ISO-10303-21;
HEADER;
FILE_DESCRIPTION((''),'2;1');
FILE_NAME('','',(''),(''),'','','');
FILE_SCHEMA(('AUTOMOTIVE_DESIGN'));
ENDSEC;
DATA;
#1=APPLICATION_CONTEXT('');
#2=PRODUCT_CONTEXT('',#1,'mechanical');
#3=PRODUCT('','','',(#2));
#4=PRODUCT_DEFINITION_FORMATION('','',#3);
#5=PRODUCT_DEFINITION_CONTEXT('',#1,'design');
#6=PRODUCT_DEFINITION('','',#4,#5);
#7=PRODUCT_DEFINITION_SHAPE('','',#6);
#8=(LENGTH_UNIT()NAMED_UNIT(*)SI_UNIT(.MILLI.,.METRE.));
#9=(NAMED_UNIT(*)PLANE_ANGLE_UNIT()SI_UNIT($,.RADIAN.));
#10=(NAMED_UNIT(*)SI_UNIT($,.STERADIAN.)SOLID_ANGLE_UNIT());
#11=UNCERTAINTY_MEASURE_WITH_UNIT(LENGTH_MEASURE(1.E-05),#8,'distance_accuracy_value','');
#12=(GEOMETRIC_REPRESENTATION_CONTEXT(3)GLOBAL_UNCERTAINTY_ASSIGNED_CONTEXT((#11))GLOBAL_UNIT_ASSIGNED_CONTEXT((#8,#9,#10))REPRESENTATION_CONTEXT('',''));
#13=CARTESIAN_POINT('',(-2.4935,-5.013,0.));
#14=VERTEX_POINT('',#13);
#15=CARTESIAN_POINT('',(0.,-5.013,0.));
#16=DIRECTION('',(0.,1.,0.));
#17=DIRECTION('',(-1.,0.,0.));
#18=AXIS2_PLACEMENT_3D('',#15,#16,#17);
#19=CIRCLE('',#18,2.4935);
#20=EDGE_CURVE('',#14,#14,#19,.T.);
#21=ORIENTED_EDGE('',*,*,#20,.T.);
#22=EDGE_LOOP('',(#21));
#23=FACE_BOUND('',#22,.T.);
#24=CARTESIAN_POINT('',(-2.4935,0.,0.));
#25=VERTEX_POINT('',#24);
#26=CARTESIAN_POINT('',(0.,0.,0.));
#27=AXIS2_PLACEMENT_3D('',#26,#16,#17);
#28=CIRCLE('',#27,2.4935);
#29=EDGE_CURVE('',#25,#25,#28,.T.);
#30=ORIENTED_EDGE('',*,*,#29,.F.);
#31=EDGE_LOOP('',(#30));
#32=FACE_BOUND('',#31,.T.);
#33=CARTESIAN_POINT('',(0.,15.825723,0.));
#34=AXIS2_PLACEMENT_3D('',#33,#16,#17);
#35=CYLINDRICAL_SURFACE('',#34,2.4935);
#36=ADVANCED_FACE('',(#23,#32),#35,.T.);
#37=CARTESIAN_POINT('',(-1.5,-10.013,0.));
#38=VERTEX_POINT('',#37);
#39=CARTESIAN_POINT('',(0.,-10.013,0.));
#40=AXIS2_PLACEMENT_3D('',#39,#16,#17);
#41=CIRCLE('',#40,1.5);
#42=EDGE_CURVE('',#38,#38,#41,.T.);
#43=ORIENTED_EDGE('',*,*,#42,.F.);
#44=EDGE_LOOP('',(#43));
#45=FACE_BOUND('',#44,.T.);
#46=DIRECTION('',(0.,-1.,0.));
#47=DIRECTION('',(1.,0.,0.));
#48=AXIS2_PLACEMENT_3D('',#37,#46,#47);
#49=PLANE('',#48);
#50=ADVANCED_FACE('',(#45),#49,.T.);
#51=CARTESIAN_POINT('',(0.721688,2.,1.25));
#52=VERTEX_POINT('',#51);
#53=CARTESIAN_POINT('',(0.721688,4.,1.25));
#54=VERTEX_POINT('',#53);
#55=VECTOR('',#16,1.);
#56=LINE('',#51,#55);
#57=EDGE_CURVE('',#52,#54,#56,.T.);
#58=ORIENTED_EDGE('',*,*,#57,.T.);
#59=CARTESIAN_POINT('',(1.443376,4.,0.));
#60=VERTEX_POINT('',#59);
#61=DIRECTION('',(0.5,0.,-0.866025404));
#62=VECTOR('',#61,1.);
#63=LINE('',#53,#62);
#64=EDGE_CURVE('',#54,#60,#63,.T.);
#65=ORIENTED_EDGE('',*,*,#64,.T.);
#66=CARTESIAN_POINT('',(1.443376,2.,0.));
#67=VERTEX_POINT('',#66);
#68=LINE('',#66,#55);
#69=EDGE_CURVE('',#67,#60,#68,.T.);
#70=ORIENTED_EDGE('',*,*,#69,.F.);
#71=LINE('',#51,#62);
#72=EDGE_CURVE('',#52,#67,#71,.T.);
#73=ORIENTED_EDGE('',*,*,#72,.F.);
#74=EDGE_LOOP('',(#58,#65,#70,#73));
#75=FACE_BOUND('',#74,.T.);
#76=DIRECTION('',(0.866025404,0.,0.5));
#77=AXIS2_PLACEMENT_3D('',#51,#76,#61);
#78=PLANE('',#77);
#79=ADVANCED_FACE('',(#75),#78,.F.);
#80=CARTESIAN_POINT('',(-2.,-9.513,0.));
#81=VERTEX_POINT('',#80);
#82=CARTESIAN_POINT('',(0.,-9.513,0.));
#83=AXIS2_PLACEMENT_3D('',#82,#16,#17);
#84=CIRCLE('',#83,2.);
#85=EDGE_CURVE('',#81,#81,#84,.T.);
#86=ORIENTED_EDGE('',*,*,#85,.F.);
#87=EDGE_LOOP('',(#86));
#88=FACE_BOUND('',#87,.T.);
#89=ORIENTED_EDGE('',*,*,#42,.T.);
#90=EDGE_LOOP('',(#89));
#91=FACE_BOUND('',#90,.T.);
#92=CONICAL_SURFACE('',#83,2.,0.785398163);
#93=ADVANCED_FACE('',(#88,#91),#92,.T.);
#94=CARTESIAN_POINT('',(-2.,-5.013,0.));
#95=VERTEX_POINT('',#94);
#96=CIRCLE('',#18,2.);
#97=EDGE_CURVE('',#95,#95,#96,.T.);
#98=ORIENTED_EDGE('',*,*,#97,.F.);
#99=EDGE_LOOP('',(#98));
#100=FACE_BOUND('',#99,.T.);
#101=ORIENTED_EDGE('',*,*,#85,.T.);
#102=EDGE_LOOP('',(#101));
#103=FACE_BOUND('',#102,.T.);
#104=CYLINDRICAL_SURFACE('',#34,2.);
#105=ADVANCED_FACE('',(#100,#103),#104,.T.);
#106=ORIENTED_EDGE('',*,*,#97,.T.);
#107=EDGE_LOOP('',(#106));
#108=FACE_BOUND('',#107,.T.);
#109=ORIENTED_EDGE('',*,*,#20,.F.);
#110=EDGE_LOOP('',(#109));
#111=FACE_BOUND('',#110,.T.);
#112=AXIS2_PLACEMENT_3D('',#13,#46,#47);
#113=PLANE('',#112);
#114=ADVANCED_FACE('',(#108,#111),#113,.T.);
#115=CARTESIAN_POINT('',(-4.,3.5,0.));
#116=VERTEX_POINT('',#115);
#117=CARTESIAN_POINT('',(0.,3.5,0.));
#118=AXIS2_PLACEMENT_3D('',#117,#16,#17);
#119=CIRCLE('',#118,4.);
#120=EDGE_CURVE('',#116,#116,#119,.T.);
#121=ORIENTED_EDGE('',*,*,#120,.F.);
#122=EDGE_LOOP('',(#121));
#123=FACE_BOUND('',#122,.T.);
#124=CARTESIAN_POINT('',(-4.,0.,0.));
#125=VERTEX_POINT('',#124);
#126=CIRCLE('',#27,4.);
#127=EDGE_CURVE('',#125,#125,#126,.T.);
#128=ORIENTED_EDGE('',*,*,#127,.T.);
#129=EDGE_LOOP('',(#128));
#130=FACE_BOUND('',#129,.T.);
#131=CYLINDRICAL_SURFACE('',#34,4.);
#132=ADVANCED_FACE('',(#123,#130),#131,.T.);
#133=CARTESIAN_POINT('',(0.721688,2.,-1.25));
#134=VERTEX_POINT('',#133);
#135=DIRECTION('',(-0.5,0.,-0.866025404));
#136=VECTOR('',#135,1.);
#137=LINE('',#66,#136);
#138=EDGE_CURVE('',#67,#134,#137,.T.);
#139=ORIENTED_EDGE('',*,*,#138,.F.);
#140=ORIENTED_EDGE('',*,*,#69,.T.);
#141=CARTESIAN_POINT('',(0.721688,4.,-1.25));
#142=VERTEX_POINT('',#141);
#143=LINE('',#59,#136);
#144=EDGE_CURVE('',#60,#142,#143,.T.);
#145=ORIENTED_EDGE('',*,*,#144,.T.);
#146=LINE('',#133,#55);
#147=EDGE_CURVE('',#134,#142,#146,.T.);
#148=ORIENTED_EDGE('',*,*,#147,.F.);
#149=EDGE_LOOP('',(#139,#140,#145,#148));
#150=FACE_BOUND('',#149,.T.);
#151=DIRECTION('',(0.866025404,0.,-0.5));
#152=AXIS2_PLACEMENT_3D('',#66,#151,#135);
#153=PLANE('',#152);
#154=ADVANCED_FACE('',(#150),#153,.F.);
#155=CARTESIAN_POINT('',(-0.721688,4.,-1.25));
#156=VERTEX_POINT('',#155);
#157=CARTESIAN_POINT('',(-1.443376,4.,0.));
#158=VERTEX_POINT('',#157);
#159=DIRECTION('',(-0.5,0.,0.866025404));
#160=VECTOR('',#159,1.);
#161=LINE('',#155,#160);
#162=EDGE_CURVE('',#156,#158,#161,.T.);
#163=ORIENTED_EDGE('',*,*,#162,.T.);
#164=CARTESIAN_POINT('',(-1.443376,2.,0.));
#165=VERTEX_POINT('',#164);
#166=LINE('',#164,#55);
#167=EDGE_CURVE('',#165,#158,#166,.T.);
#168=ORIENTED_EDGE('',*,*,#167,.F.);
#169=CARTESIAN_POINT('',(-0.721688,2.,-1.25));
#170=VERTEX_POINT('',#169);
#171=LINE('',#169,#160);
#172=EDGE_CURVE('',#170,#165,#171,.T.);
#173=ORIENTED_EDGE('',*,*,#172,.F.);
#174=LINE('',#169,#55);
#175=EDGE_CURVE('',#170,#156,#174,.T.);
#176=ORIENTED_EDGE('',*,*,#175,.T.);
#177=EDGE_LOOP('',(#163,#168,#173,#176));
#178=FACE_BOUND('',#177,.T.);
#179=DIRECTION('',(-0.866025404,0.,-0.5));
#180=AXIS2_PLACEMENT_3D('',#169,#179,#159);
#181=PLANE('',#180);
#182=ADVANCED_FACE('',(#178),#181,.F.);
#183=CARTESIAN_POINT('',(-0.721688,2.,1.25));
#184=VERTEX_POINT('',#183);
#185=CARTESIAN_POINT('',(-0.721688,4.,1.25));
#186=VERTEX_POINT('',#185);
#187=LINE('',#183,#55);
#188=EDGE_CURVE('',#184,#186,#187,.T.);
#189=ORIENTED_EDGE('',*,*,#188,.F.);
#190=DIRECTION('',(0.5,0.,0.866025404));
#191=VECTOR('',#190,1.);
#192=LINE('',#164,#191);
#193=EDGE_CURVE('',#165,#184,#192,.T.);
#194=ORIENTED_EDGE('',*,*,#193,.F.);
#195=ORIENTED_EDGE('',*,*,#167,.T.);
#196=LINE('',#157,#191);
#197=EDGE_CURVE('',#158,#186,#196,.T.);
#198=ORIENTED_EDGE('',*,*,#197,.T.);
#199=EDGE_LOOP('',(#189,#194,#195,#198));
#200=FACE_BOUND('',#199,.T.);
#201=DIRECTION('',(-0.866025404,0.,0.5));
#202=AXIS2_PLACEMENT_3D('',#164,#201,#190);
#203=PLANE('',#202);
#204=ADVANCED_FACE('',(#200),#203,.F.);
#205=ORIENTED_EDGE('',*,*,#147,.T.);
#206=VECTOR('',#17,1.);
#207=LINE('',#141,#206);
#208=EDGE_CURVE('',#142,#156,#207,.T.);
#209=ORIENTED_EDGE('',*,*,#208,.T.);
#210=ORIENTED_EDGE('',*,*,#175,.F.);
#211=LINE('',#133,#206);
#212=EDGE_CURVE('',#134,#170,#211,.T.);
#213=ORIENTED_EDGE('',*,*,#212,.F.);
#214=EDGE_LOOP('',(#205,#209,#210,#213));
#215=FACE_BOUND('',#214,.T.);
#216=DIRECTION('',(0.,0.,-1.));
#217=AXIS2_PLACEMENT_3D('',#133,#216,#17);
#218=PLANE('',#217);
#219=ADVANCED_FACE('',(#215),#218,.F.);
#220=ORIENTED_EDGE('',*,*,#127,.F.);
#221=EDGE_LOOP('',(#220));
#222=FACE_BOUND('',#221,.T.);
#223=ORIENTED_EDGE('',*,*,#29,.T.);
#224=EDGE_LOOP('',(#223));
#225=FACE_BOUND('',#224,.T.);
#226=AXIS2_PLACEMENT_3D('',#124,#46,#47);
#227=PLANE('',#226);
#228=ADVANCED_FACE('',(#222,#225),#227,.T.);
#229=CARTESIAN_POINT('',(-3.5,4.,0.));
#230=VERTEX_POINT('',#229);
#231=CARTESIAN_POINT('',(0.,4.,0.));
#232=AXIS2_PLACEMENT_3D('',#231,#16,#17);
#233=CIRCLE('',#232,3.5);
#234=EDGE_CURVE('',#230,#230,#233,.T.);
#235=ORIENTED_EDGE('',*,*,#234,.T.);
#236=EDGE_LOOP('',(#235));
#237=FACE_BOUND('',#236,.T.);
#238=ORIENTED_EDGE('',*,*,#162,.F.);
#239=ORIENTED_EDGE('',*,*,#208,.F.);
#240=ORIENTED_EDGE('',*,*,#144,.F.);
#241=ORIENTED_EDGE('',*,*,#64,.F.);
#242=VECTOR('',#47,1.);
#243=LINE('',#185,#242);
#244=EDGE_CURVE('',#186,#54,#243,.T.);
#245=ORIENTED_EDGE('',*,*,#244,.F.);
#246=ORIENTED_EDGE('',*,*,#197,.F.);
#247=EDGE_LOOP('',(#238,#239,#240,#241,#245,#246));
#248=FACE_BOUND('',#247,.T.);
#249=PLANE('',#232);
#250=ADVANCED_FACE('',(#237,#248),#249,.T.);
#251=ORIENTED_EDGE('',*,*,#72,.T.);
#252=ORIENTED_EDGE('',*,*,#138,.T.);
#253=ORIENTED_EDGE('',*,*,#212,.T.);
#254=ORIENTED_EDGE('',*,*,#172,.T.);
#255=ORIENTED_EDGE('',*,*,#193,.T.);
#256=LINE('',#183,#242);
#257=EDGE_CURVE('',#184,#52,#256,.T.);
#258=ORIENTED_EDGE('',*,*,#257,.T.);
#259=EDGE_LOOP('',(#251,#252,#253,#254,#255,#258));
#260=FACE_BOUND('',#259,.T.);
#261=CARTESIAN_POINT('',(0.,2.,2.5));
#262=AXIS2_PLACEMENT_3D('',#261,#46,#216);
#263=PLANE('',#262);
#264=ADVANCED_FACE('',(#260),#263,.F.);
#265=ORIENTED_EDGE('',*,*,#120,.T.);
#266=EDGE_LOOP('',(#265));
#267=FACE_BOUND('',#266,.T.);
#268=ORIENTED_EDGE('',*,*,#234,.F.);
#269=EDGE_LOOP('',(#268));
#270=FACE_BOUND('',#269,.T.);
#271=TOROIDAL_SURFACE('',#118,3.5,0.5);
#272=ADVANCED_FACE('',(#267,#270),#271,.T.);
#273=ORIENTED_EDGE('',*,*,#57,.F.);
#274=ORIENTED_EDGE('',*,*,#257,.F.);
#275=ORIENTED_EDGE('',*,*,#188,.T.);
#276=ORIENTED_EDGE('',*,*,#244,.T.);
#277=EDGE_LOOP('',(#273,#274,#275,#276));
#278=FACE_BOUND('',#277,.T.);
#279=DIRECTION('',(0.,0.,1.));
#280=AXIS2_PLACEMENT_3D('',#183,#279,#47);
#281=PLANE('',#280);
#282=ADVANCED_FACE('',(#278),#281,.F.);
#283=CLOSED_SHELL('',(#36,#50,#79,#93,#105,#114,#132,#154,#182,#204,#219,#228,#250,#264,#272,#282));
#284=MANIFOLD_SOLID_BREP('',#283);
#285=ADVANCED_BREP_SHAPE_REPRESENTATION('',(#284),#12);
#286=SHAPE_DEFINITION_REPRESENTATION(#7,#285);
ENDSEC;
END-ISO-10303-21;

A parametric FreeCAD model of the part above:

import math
import FreeCAD as App
import Part
import Sketcher
from FreeCAD import Vector
Q = App.Units.Quantity

doc = App.newDocument("Part")
body = doc.addObject("PartDesign::Body", "Body")

# Sketch on XY plane
sketch1 = body.newObject("Sketcher::SketchObject", "Sketch")
sketch1.AttachmentSupport = (doc.getObject("XY_Plane"), [""])
sketch1.MapMode = "FlatFace"
sketch1.addGeometry(Part.LineSegment(Vector(0, 4, 0), Vector(-3.5, 4, 0)), False)
sketch1.addGeometry(Part.ArcOfCircle(Part.Circle(Vector(-3.5, 3.5, 0), Vector(0, 0, 1), 0.5), math.radians(90), math.radians(180)), False)
sketch1.addGeometry(Part.LineSegment(Vector(-4, 3.5, 0), Vector(-4, 0, 0)), False)
sketch1.addGeometry(Part.LineSegment(Vector(-4, 0, 0), Vector(-2.4935, 0, 0)), False)
sketch1.addGeometry(Part.LineSegment(Vector(-2.4935, 0, 0), Vector(-2.4935, -5.013, 0)), False)
sketch1.addGeometry(Part.LineSegment(Vector(-2.4935, -5.013, 0), Vector(-2, -5.013, 0)), False)
sketch1.addGeometry(Part.LineSegment(Vector(-2, -5.013, 0), Vector(-2, -9.513, 0)), False)
sketch1.addGeometry(Part.LineSegment(Vector(-2, -9.513, 0), Vector(-1.5, -10.013, 0)), False)
sketch1.addGeometry(Part.LineSegment(Vector(-1.5, -10.013, 0), Vector(0, -10.013, 0)), False)
sketch1.addGeometry(Part.LineSegment(Vector(0, -10.013, 0), Vector(0, 4, 0)), False)
sketch1.addConstraint(Sketcher.Constraint("Tangent", 0, 2, 1, 1))
sketch1.addConstraint(Sketcher.Constraint("Tangent", 1, 2, 2, 1))
sketch1.addConstraint(Sketcher.Constraint("Coincident", 2, 2, 3, 1))
sketch1.addConstraint(Sketcher.Constraint("Coincident", 3, 2, 4, 1))
sketch1.addConstraint(Sketcher.Constraint("Coincident", 4, 2, 5, 1))
sketch1.addConstraint(Sketcher.Constraint("Coincident", 5, 2, 6, 1))
sketch1.addConstraint(Sketcher.Constraint("Coincident", 6, 2, 7, 1))
sketch1.addConstraint(Sketcher.Constraint("Coincident", 7, 2, 8, 1))
sketch1.addConstraint(Sketcher.Constraint("Coincident", 8, 2, 9, 1))
sketch1.addConstraint(Sketcher.Constraint("Coincident", 9, 2, 0, 1))
sketch1.addConstraint(Sketcher.Constraint("Horizontal", 0))
sketch1.addConstraint(Sketcher.Constraint("Vertical", 2))
sketch1.addConstraint(Sketcher.Constraint("Horizontal", 3))
sketch1.addConstraint(Sketcher.Constraint("Vertical", 4))
sketch1.addConstraint(Sketcher.Constraint("Horizontal", 5))
sketch1.addConstraint(Sketcher.Constraint("Vertical", 6))
sketch1.addConstraint(Sketcher.Constraint("Horizontal", 8))
sketch1.addConstraint(Sketcher.Constraint("Vertical", 9))
sketch1.addConstraint(Sketcher.Constraint("PointOnObject", 2, 2, -1))
sketch1.addConstraint(Sketcher.Constraint("PointOnObject", 8, 2, -2))
sketch1.addConstraint(Sketcher.Constraint("Equal", 0, 2))
sketch1.addConstraint(Sketcher.Constraint("Radius", 1, Q("0.5 mm")))
sketch1.addConstraint(Sketcher.Constraint("Angle", 7, Q("-45 deg")))
sketch1.addConstraint(Sketcher.Constraint("DistanceX", 0, 2, 0, 1, Q("3.5 mm")))
sketch1.addConstraint(Sketcher.Constraint("DistanceX", 8, 1, 8, 2, Q("1.5 mm")))
sketch1.addConstraint(Sketcher.Constraint("DistanceY", 6, 2, 6, 1, Q("4.5 mm")))
sketch1.addConstraint(Sketcher.Constraint("DistanceX", 5, 2, -1, 1, Q("2 mm")))
sketch1.addConstraint(Sketcher.Constraint("DistanceY", 4, 2, 4, 1, Q("5.013 mm")))
sketch1.addConstraint(Sketcher.Constraint("DistanceX", 3, 1, 3, 2, Q("1.5065 mm")))
revolution = body.newObject("PartDesign::Revolution", "Revolution")
revolution.Profile = sketch1
revolution.ReferenceAxis = (sketch1, ["V_Axis"])
revolution.Angle = 360

# Sketch on XZ plane
sketch2 = body.newObject("Sketcher::SketchObject", "Sketch001")
sketch2.AttachmentSupport = (doc.getObject("XZ_Plane"), [""])
sketch2.MapMode = "FlatFace"
sketch2.AttachmentOffset = App.Placement(Vector(0, 0, -4), App.Rotation())
sketch2.addGeometry(Part.LineSegment(Vector(1.443376, 0, 0), Vector(0.721688, -1.25, 0)), False)
sketch2.addGeometry(Part.LineSegment(Vector(0.721688, -1.25, 0), Vector(-0.721688, -1.25, 0)), False)
sketch2.addGeometry(Part.LineSegment(Vector(-0.721688, -1.25, 0), Vector(-1.443376, 0, 0)), False)
sketch2.addGeometry(Part.LineSegment(Vector(-1.443376, 0, 0), Vector(-0.721688, 1.25, 0)), False)
sketch2.addGeometry(Part.LineSegment(Vector(-0.721688, 1.25, 0), Vector(0.721688, 1.25, 0)), False)
sketch2.addGeometry(Part.LineSegment(Vector(0.721688, 1.25, 0), Vector(1.443376, 0, 0)), False)
sketch2.addConstraint(Sketcher.Constraint("Coincident", 0, 2, 1, 1))
sketch2.addConstraint(Sketcher.Constraint("Coincident", 1, 2, 2, 1))
sketch2.addConstraint(Sketcher.Constraint("Coincident", 2, 2, 3, 1))
sketch2.addConstraint(Sketcher.Constraint("Coincident", 3, 2, 4, 1))
sketch2.addConstraint(Sketcher.Constraint("Coincident", 4, 2, 5, 1))
sketch2.addConstraint(Sketcher.Constraint("Coincident", 5, 2, 0, 1))
sketch2.addConstraint(Sketcher.Constraint("Horizontal", 1))
sketch2.addConstraint(Sketcher.Constraint("Horizontal", 4))
sketch2.addConstraint(Sketcher.Constraint("Symmetric", 0, 2, 3, 2, -1, 1))
sketch2.addConstraint(Sketcher.Constraint("Symmetric", 2, 2, 5, 2, -1, 1))
sketch2.addConstraint(Sketcher.Constraint("PointOnObject", 2, 2, -1))
sketch2.addConstraint(Sketcher.Constraint("Parallel", 2, 5))
sketch2.addConstraint(Sketcher.Constraint("Vertical", 1, 2, 3, 2))
sketch2.addConstraint(Sketcher.Constraint("Angle", 0, Q("-120 deg")))
sketch2.addConstraint(Sketcher.Constraint("DistanceY", 1, 2, 3, 2, Q("2.5 mm")))
sketch2.addConstraint(Sketcher.Constraint("DistanceX", 1, 2, 1, 1, Q("1.443376 mm")))
pocket1 = body.newObject("PartDesign::Pocket", "Pocket")
pocket1.Profile = sketch2
pocket1.Length = 2
pocket1.Reversed = True

doc.recompute()
